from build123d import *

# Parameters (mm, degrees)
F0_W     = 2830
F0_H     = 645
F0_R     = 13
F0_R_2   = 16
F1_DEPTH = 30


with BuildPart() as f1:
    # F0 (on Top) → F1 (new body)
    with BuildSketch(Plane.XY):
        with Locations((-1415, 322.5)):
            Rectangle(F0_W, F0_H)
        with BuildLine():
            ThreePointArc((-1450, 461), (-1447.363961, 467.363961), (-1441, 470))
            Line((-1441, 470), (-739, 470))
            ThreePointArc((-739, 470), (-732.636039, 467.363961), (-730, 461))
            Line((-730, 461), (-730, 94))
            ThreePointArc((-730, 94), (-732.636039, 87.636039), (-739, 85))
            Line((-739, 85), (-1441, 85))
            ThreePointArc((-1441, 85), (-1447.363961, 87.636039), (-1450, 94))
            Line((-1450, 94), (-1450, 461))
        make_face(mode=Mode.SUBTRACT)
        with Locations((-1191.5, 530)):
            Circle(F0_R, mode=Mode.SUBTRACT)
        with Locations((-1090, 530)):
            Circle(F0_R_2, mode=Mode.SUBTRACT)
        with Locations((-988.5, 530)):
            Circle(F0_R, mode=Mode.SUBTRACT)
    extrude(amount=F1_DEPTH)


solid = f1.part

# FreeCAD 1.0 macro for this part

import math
import FreeCAD as App
import Part
import Sketcher
Q = App.Units.Quantity

doc = App.newDocument("Part")
body = doc.addObject("PartDesign::Body", "Body")

sketch1 = body.newObject("Sketcher::SketchObject", "Sketch")
sketch1.AttachmentSupport = (doc.getObject("XY_Plane"), [""])
sketch1.MapMode = "FlatFace"
sketch1.addGeometry(Part.LineSegment(App.Vector(-2830, 645, 0), App.Vector(-2830, 0, 0)), False)
sketch1.addGeometry(Part.LineSegment(App.Vector(-2830, 0, 0), App.Vector(0, 0, 0)), False)
sketch1.addGeometry(Part.LineSegment(App.Vector(0, 0, 0), App.Vector(0, 645, 0)), False)
sketch1.addGeometry(Part.LineSegment(App.Vector(0, 645, 0), App.Vector(-2830, 645, 0)), False)
sketch1.addGeometry(Part.LineSegment(App.Vector(-1450, 94, 0), App.Vector(-1450, 461, 0)), False)
sketch1.addGeometry(Part.ArcOfCircle(Part.Circle(App.Vector(-1441, 461, 0), App.Vector(0, 0, 1), 9), math.radians(90), math.radians(180)), False)
sketch1.addGeometry(Part.LineSegment(App.Vector(-1441, 470, 0), App.Vector(-739, 470, 0)), False)
sketch1.addGeometry(Part.ArcOfCircle(Part.Circle(App.Vector(-739, 461, 0), App.Vector(0, 0, 1), 9), math.radians(0), math.radians(90)), False)
sketch1.addGeometry(Part.LineSegment(App.Vector(-730, 461, 0), App.Vector(-730, 94, 0)), False)
sketch1.addGeometry(Part.ArcOfCircle(Part.Circle(App.Vector(-739, 94, 0), App.Vector(0, 0, 1), 9), math.radians(-90), math.radians(0)), False)
sketch1.addGeometry(Part.LineSegment(App.Vector(-739, 85, 0), App.Vector(-1441, 85, 0)), False)
sketch1.addGeometry(Part.ArcOfCircle(Part.Circle(App.Vector(-1441, 94, 0), App.Vector(0, 0, 1), 9), math.radians(-180), math.radians(-90)), False)
sketch1.addGeometry(Part.Circle(App.Vector(-1192, 530, 0), App.Vector(0, 0, 1), 13), False)
sketch1.addGeometry(Part.Circle(App.Vector(-1090, 530, 0), App.Vector(0, 0, 1), 16), False)
sketch1.addGeometry(Part.Circle(App.Vector(-988, 530, 0), App.Vector(0, 0, 1), 13), False)
sketch1.addConstraint(Sketcher.Constraint("Coincident", 0, 2, 1, 1))
sketch1.addConstraint(Sketcher.Constraint("Coincident", 1, 2, 2, 1))
sketch1.addConstraint(Sketcher.Constraint("Coincident", 2, 2, 3, 1))
sketch1.addConstraint(Sketcher.Constraint("Coincident", 3, 2, 0, 1))
sketch1.addConstraint(Sketcher.Constraint("Tangent", 4, 2, 5, 2))
sketch1.addConstraint(Sketcher.Constraint("Tangent", 5, 1, 6, 1))
sketch1.addConstraint(Sketcher.Constraint("Tangent", 6, 2, 7, 2))
sketch1.addConstraint(Sketcher.Constraint("Tangent", 7, 1, 8, 1))
sketch1.addConstraint(Sketcher.Constraint("Tangent", 8, 2, 9, 2))
sketch1.addConstraint(Sketcher.Constraint("Tangent", 9, 1, 10, 1))
sketch1.addConstraint(Sketcher.Constraint("Tangent", 10, 2, 11, 2))
sketch1.addConstraint(Sketcher.Constraint("Tangent", 11, 1, 4, 1))
sketch1.addConstraint(Sketcher.Constraint("Vertical", 0))
sketch1.addConstraint(Sketcher.Constraint("Horizontal", 1))
sketch1.addConstraint(Sketcher.Constraint("Vertical", 2))
sketch1.addConstraint(Sketcher.Constraint("Horizontal", 3))
sketch1.addConstraint(Sketcher.Constraint("Vertical", 4))
sketch1.addConstraint(Sketcher.Constraint("Horizontal", 6))
sketch1.addConstraint(Sketcher.Constraint("Vertical", 8))
sketch1.addConstraint(Sketcher.Constraint("Horizontal", 10))
sketch1.addConstraint(Sketcher.Constraint("Coincident", 1, 2, -1, 1))
sketch1.addConstraint(Sketcher.Constraint("Equal", 5, 7))
sketch1.addConstraint(Sketcher.Constraint("Equal", 7, 9))
sketch1.addConstraint(Sketcher.Constraint("Equal", 9, 11))
sketch1.addConstraint(Sketcher.Constraint("Equal", 12, 14))
sketch1.addConstraint(Sketcher.Constraint("Horizontal", 12, 3, 13, 3))
sketch1.addConstraint(Sketcher.Constraint("Horizontal", 13, 3, 14, 3))
sketch1.addConstraint(Sketcher.Constraint("Diameter", 12, Q("26 mm")))
sketch1.addConstraint(Sketcher.Constraint("Diameter", 13, Q("32 mm")))
sketch1.addConstraint(Sketcher.Constraint("Radius", 5, Q("9 mm")))
sketch1.addConstraint(Sketcher.Constraint("DistanceX", 1, 1, 1, 2, Q("2830 mm")))
sketch1.addConstraint(Sketcher.Constraint("DistanceX", 6, 1, 6, 2, Q("702 mm")))
sketch1.addConstraint(Sketcher.Constraint("DistanceY", 0, 2, 0, 1, Q("645 mm")))
sketch1.addConstraint(Sketcher.Constraint("DistanceY", 4, 1, 4, 2, Q("367 mm")))
sketch1.addConstraint(Sketcher.Constraint("DistanceX", 5, 3, -1, 1, Q("1441 mm")))
sketch1.addConstraint(Sketcher.Constraint("DistanceY", -1, 1, 5, 3, Q("461 mm")))
sketch1.addConstraint(Sketcher.Constraint("DistanceY", -1, 1, 12, 3, Q("530 mm")))
sketch1.addConstraint(Sketcher.Constraint("DistanceX", 13, 3, -1, 1, Q("1090 mm")))
sketch1.addConstraint(Sketcher.Constraint("DistanceX", 12, 3, 14, 3, Q("203 mm")))
sketch1.addConstraint(Sketcher.Constraint("DistanceX", 12, 3, -1, 1, Q("1191.5 mm")))
pad1 = body.newObject("PartDesign::Pad", "Pad")
pad1.Profile = sketch1
pad1.Length = 30

doc.recompute()
